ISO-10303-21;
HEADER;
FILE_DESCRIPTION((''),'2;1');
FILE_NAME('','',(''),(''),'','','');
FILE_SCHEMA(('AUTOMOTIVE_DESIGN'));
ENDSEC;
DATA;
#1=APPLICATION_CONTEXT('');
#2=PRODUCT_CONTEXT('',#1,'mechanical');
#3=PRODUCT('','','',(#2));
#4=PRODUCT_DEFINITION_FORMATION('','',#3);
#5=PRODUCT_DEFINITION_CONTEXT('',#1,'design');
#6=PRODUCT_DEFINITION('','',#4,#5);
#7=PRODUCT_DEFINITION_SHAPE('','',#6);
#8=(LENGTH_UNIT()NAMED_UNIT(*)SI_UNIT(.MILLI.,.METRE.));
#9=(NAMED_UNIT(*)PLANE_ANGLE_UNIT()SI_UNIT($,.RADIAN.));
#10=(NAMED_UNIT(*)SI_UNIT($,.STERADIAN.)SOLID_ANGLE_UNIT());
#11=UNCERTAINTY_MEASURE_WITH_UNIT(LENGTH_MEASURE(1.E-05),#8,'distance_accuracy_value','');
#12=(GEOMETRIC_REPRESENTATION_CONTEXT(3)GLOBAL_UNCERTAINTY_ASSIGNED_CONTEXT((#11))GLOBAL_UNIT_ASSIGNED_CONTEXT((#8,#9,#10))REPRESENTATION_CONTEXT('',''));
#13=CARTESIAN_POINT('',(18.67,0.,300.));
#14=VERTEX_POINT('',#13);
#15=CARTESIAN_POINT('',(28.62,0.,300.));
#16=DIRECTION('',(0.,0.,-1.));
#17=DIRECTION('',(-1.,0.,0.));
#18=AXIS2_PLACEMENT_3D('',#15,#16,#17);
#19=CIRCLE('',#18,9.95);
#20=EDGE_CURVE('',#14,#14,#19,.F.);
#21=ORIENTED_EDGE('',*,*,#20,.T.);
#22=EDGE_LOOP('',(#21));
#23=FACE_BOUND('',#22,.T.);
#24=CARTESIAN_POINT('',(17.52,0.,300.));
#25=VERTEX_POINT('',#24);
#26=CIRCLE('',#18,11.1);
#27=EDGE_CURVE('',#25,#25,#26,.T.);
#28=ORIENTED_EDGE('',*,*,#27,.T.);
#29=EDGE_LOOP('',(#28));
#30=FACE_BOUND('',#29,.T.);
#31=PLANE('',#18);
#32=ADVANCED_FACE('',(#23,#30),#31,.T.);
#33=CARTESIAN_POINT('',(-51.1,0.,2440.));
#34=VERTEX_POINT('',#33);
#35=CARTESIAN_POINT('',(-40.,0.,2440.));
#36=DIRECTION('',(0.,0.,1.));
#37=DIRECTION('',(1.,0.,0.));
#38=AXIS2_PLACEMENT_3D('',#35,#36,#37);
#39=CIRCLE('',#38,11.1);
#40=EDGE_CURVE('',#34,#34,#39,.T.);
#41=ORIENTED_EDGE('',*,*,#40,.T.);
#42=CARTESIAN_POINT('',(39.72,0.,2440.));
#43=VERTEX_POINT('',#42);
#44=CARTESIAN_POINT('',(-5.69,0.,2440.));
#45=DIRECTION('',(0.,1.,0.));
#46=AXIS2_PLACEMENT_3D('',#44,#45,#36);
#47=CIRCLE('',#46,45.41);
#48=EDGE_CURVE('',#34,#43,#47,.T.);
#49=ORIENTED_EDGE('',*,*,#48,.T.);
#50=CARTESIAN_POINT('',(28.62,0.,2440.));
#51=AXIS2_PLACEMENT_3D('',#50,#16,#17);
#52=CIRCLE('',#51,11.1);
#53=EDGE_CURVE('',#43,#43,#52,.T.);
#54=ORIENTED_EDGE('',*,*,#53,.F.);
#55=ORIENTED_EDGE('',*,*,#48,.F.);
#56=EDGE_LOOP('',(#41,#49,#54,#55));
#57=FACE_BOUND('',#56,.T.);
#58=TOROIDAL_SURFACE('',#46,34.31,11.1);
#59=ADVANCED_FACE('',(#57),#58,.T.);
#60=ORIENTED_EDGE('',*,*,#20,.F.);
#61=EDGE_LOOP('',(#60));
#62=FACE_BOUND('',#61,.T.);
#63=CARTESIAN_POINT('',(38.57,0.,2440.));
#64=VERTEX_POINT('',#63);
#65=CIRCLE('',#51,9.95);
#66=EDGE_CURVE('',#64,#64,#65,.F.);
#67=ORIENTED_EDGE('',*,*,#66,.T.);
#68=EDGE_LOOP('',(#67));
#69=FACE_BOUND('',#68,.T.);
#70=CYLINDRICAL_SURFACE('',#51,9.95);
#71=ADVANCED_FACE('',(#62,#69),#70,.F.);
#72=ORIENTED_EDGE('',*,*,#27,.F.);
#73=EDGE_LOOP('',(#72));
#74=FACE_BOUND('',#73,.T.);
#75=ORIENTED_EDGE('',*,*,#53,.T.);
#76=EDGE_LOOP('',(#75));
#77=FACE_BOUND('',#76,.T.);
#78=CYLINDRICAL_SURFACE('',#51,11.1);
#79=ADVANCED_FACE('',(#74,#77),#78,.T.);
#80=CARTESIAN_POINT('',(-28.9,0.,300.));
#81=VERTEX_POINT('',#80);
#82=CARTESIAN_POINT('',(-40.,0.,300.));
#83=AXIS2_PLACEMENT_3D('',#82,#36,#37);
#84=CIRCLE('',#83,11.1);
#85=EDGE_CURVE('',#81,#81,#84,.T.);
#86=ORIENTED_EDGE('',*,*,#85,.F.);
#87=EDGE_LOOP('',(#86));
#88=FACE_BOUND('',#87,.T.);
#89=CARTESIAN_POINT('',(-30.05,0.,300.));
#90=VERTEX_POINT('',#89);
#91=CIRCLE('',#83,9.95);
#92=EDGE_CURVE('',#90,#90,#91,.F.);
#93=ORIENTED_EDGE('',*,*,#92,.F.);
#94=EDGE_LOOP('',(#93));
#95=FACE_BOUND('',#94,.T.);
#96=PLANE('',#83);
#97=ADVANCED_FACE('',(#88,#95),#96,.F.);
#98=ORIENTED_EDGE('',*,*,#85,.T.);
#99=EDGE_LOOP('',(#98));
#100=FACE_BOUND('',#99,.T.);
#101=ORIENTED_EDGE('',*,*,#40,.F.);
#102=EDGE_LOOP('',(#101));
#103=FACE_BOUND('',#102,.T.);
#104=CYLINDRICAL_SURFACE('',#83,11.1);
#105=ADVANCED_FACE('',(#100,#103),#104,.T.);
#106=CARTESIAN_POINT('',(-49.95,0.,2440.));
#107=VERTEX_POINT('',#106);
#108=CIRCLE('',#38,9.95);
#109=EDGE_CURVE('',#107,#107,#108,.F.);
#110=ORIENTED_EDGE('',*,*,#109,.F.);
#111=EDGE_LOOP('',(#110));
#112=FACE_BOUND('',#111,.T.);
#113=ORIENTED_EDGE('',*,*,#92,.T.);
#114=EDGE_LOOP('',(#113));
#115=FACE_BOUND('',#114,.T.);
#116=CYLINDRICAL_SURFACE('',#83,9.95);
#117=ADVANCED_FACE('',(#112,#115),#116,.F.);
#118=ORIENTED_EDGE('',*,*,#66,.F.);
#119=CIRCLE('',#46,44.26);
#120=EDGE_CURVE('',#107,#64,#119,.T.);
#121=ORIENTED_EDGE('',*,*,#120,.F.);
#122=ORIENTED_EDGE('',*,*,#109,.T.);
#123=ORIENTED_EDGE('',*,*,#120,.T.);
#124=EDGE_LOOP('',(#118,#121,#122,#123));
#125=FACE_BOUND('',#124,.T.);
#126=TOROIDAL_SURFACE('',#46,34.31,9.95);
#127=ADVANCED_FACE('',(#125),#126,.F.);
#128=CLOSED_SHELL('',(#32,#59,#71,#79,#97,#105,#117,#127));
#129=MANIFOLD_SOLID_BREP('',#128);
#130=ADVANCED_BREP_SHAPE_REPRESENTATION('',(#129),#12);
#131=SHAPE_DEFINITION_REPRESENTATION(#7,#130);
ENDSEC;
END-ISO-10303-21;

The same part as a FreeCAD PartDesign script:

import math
import FreeCAD as App
import Part
import Sketcher

doc = App.newDocument("Part")
body = doc.addObject("PartDesign::Body", "Body")

# Sketch on XY plane
sketch1 = doc.addObject("Sketcher::SketchObject", "Sketch")
body.addObject(sketch1)
sketch1.AttachmentSupport = (doc.XY_Plane, [""])
sketch1.MapMode = "FlatFace"
sketch1.AttachmentOffset = App.Placement(App.Vector(0, 0, 300), App.Rotation())
sketch1.addGeometry(Part.Circle(App.Vector(29, 0, 0), App.Vector(0, 0, 1), 11), False)
sketch1.addGeometry(Part.Circle(App.Vector(29, 0, 0), App.Vector(0, 0, 1), 10), False)
sketch1.addConstraint(Sketcher.Constraint("Coincident", 1, 3, 0, 3))
sketch1.addConstraint(Sketcher.Constraint("PointOnObject", 0, 3, -1))
sketch1.addConstraint(Sketcher.Constraint("Diameter", 0, 22.2))
sketch1.addConstraint(Sketcher.Constraint("Diameter", 1, 19.9))
sketch1.addConstraint(Sketcher.Constraint("DistanceX", -1, 1, 0, 3, 28.62))

# Sketch on XZ plane
sketch2 = doc.addObject("Sketcher::SketchObject", "Sketch001")
body.addObject(sketch2)
sketch2.AttachmentSupport = (doc.XZ_Plane, [""])
sketch2.MapMode = "FlatFace"
sketch2.addGeometry(Part.LineSegment(App.Vector(29, 300, 0), App.Vector(29, 2440, 0)), False)
sketch2.addGeometry(Part.ArcOfCircle(Part.Circle(App.Vector(-6, 2440, 0), App.Vector(0, 0, 1), 34), math.radians(0), math.radians(180)), False)
sketch2.addGeometry(Part.LineSegment(App.Vector(-40, 2440, 0), App.Vector(-40, 300, 0)), False)
sketch2.addConstraint(Sketcher.Constraint("Tangent", 0, 2, 1, 1))
sketch2.addConstraint(Sketcher.Constraint("Tangent", 1, 2, 2, 1))
sketch2.addConstraint(Sketcher.Constraint("Vertical", 0))
sketch2.addConstraint(Sketcher.Constraint("Vertical", 2))
sketch2.addConstraint(Sketcher.Constraint("Horizontal", 0, 1, 2, 2))
sketch2.addConstraint(Sketcher.Constraint("DistanceY", 0, 1, 0, 2, 2140.0))
sketch2.addConstraint(Sketcher.Constraint("Radius", 1, 34.31))
sketch2.addConstraint(Sketcher.Constraint("DistanceY", -1, 1, 1, 3, 2440.0))
sketch2.addConstraint(Sketcher.Constraint("DistanceX", 1, 2, -1, 1, 40.0))
doc.recompute()

additivepipe = doc.addObject("PartDesign::AdditivePipe", "AdditivePipe")
body.addObject(additivepipe)
additivepipe.Profile = sketch1
additivepipe.Spine = (sketch2, ["Edge1", "Edge2", "Edge3"])

doc.recompute()
